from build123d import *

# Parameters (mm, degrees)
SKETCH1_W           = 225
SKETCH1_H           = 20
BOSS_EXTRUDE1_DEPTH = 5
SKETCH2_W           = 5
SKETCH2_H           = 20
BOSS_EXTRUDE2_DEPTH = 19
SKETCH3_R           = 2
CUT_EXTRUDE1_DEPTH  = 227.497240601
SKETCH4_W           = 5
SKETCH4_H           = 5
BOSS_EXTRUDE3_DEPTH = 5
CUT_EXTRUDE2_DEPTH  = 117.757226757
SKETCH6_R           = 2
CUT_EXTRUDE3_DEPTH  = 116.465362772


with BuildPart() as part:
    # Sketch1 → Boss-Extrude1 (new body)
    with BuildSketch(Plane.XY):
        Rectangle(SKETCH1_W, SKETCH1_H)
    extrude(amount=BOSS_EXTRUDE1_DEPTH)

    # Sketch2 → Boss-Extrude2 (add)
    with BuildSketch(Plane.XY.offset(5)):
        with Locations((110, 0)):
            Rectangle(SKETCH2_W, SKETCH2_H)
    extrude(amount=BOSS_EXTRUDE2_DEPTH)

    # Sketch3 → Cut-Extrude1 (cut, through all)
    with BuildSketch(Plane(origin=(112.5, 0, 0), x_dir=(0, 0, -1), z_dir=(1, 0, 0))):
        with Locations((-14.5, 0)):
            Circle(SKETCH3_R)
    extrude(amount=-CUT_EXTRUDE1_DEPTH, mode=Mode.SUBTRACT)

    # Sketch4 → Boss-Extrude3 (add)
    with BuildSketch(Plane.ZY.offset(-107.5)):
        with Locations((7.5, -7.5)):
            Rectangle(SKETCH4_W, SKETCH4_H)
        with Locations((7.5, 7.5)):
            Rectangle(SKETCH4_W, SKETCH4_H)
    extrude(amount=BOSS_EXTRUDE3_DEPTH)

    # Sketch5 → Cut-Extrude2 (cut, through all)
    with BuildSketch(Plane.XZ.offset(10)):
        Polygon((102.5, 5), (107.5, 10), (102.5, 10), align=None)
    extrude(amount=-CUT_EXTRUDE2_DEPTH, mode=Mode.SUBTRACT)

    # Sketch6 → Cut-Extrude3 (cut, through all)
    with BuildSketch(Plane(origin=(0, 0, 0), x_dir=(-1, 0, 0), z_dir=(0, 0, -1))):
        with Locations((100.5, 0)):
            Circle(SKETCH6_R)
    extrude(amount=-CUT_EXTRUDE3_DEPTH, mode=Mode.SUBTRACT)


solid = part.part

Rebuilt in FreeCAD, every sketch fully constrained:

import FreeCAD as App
import Part
import Sketcher

V = App.Vector


def add_polygon(sketch, points):
    """Adds a closed chain of lines whose ends are joined by coincident constraints."""
    first, n = sketch.GeometryCount, len(points)
    for a, b in zip(points, points[1:] + points[:1]):
        sketch.addGeometry(Part.LineSegment(App.Vector(*a, 0), App.Vector(*b, 0)), False)
    for i in range(n):
        sketch.addConstraint(Sketcher.Constraint("Coincident", first + i, 2, first + (i + 1) % n, 1))

doc = App.newDocument("Part")
body = doc.addObject("PartDesign::Body", "Body")

# Sketch on XY plane
sketch1 = body.newObject("Sketcher::SketchObject", "Sketch")
sketch1.AttachmentSupport = (doc.getObject("XY_Plane"), [""])
sketch1.MapMode = "FlatFace"
add_polygon(sketch1, [(-112, 10), (-112, -10), (112, -10), (112, 10)])  # lines 0-3
sketch1.addConstraint([
    Sketcher.Constraint("Vertical", 0),
    Sketcher.Constraint("Horizontal", 1),
    Sketcher.Constraint("Vertical", 2),
    Sketcher.Constraint("Horizontal", 3),
    Sketcher.Constraint("Symmetric", 0, 2, 2, 2, -1, 1),
    Sketcher.Constraint("DistanceX", 1, 1, 1, 2, 225.0),
    Sketcher.Constraint("DistanceY", 0, 2, 0, 1, 20.0),
])
pad1 = body.newObject("PartDesign::Pad", "Pad")
pad1.Profile = sketch1
pad1.Length = 5

# Sketch on XY plane
sketch2 = body.newObject("Sketcher::SketchObject", "Sketch001")
sketch2.AttachmentSupport = (doc.getObject("XY_Plane"), [""])
sketch2.MapMode = "FlatFace"
sketch2.AttachmentOffset = App.Placement(V(0, 0, 5), App.Rotation())
add_polygon(sketch2, [(108, 10), (108, -10), (112, -10), (112, 10)])  # lines 0-3
sketch2.addConstraint([
    Sketcher.Constraint("Vertical", 0),
    Sketcher.Constraint("Horizontal", 1),
    Sketcher.Constraint("Vertical", 2),
    Sketcher.Constraint("Horizontal", 3),
    Sketcher.Constraint("DistanceX", 1, 1, 1, 2, 5.0),
    Sketcher.Constraint("DistanceY", 0, 2, 0, 1, 20.0),
    Sketcher.Constraint("DistanceY", 0, 2, -1, 1, 10.0),
    Sketcher.Constraint("DistanceX", -1, 1, 0, 2, 107.5),
])
pad2 = body.newObject("PartDesign::Pad", "Pad001")
pad2.Profile = sketch2
pad2.Length = 19

# Sketch on YZ plane
sketch3 = body.newObject("Sketcher::SketchObject", "Sketch002")
sketch3.AttachmentSupport = (doc.getObject("YZ_Plane"), [""])
sketch3.MapMode = "FlatFace"
sketch3.AttachmentOffset = App.Placement(V(0, 0, 112.5), App.Rotation())
sketch3.addGeometry(Part.Circle(V(0, 14.5, 0), V(0, 0, 1), 2), False)
sketch3.addConstraint([
    Sketcher.Constraint("PointOnObject", 0, 3, -2),
    Sketcher.Constraint("Diameter", 0, 4.0),
    Sketcher.Constraint("DistanceY", -1, 1, 0, 3, 14.5),
])
pocket1 = body.newObject("PartDesign::Pocket", "Pocket")
pocket1.Profile = sketch3
pocket1.Type = "ThroughAll"

# Sketch on YZ plane
sketch4 = body.newObject("Sketcher::SketchObject", "Sketch003")
sketch4.AttachmentSupport = (doc.getObject("YZ_Plane"), [""])
sketch4.MapMode = "FlatFace"
sketch4.AttachmentOffset = App.Placement(V(0, 0, 107.5), App.Rotation())
add_polygon(sketch4, [(-5, 5), (-10, 5), (-10, 10), (-5, 10)])  # lines 0-3
add_polygon(sketch4, [(10, 5), (5, 5), (5, 10), (10, 10)])  # lines 4-7
sketch4.addConstraint([
    Sketcher.Constraint("Horizontal", 0),
    Sketcher.Constraint("Vertical", 1),
    Sketcher.Constraint("Horizontal", 2),
    Sketcher.Constraint("Vertical", 3),
    Sketcher.Constraint("Horizontal", 4),
    Sketcher.Constraint("Vertical", 5),
    Sketcher.Constraint("Horizontal", 6),
    Sketcher.Constraint("Vertical", 7),
    Sketcher.Constraint("Symmetric", 3, 2, 4, 2, -2),
    Sketcher.Constraint("Symmetric", 1, 2, 6, 2, -2),
    Sketcher.Constraint("Equal", 6, 1),
    Sketcher.Constraint("DistanceX", 0, 2, 0, 1, 5.0),
    Sketcher.Constraint("DistanceX", 0, 2, -1, 1, 10.0),
    Sketcher.Constraint("DistanceY", -1, 1, 0, 2, 5.0),
])
pad3 = body.newObject("PartDesign::Pad", "Pad002")
pad3.Profile = sketch4
pad3.Length = 5
pad3.Reversed = True

# Sketch on XZ plane
sketch5 = body.newObject("Sketcher::SketchObject", "Sketch004")
sketch5.AttachmentSupport = (doc.getObject("XZ_Plane"), [""])
sketch5.MapMode = "FlatFace"
sketch5.AttachmentOffset = App.Placement(V(0, 0, 10), App.Rotation())
add_polygon(sketch5, [(102, 5), (108, 10), (102, 10)])  # lines 0-2
sketch5.addConstraint([
    Sketcher.Constraint("Horizontal", 1),
    Sketcher.Constraint("Vertical", 2),
    Sketcher.Constraint("Equal", 1, 2),
    Sketcher.Constraint("DistanceX", 1, 2, 1, 1, 5.0),
    Sketcher.Constraint("DistanceY", -1, 1, 0, 2, 10.0),
    Sketcher.Constraint("DistanceX", -1, 1, 0, 2, 107.5),
])
pocket2 = body.newObject("PartDesign::Pocket", "Pocket001")
pocket2.Profile = sketch5
pocket2.Type = "ThroughAll"

# Sketch on XY plane
sketch6 = body.newObject("Sketcher::SketchObject", "Sketch005")
sketch6.AttachmentSupport = (doc.getObject("XY_Plane"), [""])
sketch6.MapMode = "FlatFace"
sketch6.addGeometry(Part.Circle(V(-100.5, 0, 0), V(0, 0, 1), 2), False)
sketch6.addConstraint([
    Sketcher.Constraint("PointOnObject", 0, 3, -1),
    Sketcher.Constraint("Diameter", 0, 4.0),
    Sketcher.Constraint("DistanceX", 0, 3, -1, 1, 100.5),
])
pocket3 = body.newObject("PartDesign::Pocket", "Pocket002")
pocket3.Profile = sketch6
pocket3.Type = "ThroughAll"
pocket3.Reversed = True

doc.recompute()
